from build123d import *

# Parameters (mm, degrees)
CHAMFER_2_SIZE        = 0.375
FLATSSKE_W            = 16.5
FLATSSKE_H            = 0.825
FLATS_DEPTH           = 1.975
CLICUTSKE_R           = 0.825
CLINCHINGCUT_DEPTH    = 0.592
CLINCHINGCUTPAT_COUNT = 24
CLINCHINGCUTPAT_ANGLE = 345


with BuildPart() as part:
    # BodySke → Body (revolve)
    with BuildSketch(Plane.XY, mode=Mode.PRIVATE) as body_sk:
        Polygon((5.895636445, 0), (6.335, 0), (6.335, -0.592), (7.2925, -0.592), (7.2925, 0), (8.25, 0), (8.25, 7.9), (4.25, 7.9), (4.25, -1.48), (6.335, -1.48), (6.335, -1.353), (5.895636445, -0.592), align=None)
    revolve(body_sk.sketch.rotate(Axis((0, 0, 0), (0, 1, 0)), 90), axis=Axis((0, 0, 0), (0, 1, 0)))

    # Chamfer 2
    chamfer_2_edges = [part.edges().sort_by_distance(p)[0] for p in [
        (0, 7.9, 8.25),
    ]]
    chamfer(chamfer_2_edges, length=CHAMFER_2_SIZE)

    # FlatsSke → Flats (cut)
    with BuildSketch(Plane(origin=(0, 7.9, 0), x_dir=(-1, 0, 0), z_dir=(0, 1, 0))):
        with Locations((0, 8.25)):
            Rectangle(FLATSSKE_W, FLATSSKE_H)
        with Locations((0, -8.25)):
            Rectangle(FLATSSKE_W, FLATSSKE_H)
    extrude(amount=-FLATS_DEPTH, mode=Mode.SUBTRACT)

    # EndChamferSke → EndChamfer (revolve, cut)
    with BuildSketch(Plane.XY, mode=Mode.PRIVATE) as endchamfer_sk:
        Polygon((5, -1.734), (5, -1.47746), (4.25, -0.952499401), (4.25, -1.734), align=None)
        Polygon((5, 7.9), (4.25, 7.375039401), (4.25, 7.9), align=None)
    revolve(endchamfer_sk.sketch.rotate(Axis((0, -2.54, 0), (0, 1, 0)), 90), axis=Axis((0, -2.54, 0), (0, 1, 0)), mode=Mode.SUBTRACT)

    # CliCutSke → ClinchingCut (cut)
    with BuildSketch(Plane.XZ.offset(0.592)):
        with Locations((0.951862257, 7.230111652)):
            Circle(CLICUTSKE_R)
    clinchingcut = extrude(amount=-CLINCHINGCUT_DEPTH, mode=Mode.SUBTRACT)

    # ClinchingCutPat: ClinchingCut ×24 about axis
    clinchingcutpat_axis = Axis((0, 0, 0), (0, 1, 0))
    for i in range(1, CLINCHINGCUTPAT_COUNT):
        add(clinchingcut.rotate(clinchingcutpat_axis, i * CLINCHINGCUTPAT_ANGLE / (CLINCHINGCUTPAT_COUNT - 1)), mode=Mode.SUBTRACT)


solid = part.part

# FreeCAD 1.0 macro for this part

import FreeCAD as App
import Part
import Sketcher
Q = App.Units.Quantity


def edges_at(feature, points):
    """Names of the edges that pass closest to the given points."""
    edges = feature.Shape.Edges
    near = lambda p: min(range(len(edges)), key=lambda i: edges[i].distToShape(Part.Vertex(*p))[0])
    return sorted({f"Edge{near(p) + 1}" for p in points})

doc = App.newDocument("Part")
params = doc.addObject("Spreadsheet::Sheet", "Params")
for row, (alias, value) in enumerate([
    ("sketch1_width", "4 mm"),
    ("sketch1_height", "7.9 mm"),
    ("sketch1_height2", "9.38 mm"),
    ("revolution_angle", "360 deg"),
    ("chamfer_size", "0.375 mm"),
    ("sketch2_width", "16.5 mm"),
    ("pocket1_length", "1.975 mm"),
    ("sketch3_width", "0.75 mm"),
    ("groove_angle", "360 deg"),
    ("sketch4_diameter", "1.65 mm"),
    ("pocket2_length", "0.592 mm"),
], start=1):
    params.set(f"A{row}", alias)
    params.set(f"B{row}", "=" + value)
    params.setAlias(f"B{row}", alias)

body = doc.addObject("PartDesign::Body", "Body")

# Sketch on XY plane
sketch1 = doc.addObject("Sketcher::SketchObject", "Sketch")
body.addObject(sketch1)
sketch1.AttachmentSupport = (doc.XY_Plane, [""])
sketch1.MapMode = "FlatFace"
sketch1.addGeometry(Part.LineSegment(App.Vector(5.9, 0, 0), App.Vector(6.33, 0, 0)), False)
sketch1.addGeometry(Part.LineSegment(App.Vector(6.33, 0, 0), App.Vector(6.33, -0.59, 0)), False)
sketch1.addGeometry(Part.LineSegment(App.Vector(6.33, -0.59, 0), App.Vector(7.29, -0.59, 0)), False)
sketch1.addGeometry(Part.LineSegment(App.Vector(7.29, -0.59, 0), App.Vector(7.29, 0, 0)), False)
sketch1.addGeometry(Part.LineSegment(App.Vector(7.29, 0, 0), App.Vector(8.25, 0, 0)), False)
sketch1.addGeometry(Part.LineSegment(App.Vector(8.25, 0, 0), App.Vector(8.25, 7.9, 0)), False)
sketch1.addGeometry(Part.LineSegment(App.Vector(8.25, 7.9, 0), App.Vector(4.25, 7.9, 0)), False)
sketch1.addGeometry(Part.LineSegment(App.Vector(4.25, 7.9, 0), App.Vector(4.25, -1.48, 0)), False)
sketch1.addGeometry(Part.LineSegment(App.Vector(4.25, -1.48, 0), App.Vector(6.33, -1.48, 0)), False)
sketch1.addGeometry(Part.LineSegment(App.Vector(6.33, -1.48, 0), App.Vector(6.33, -1.35, 0)), False)
sketch1.addGeometry(Part.LineSegment(App.Vector(6.33, -1.35, 0), App.Vector(5.9, -0.59, 0)), False)
sketch1.addGeometry(Part.LineSegment(App.Vector(5.9, -0.59, 0), App.Vector(5.9, 0, 0)), False)
sketch1.addConstraint(Sketcher.Constraint("Coincident", 0, 2, 1, 1))
sketch1.addConstraint(Sketcher.Constraint("Coincident", 1, 2, 2, 1))
sketch1.addConstraint(Sketcher.Constraint("Coincident", 2, 2, 3, 1))
sketch1.addConstraint(Sketcher.Constraint("Coincident", 3, 2, 4, 1))
sketch1.addConstraint(Sketcher.Constraint("Coincident", 4, 2, 5, 1))
sketch1.addConstraint(Sketcher.Constraint("Coincident", 5, 2, 6, 1))
sketch1.addConstraint(Sketcher.Constraint("Coincident", 6, 2, 7, 1))
sketch1.addConstraint(Sketcher.Constraint("Coincident", 7, 2, 8, 1))
sketch1.addConstraint(Sketcher.Constraint("Coincident", 8, 2, 9, 1))
sketch1.addConstraint(Sketcher.Constraint("Coincident", 9, 2, 10, 1))
sketch1.addConstraint(Sketcher.Constraint("Coincident", 10, 2, 11, 1))
sketch1.addConstraint(Sketcher.Constraint("Coincident", 11, 2, 0, 1))
sketch1.addConstraint(Sketcher.Constraint("Horizontal", 0))
sketch1.addConstraint(Sketcher.Constraint("Vertical", 1))
sketch1.addConstraint(Sketcher.Constraint("Horizontal", 2))
sketch1.addConstraint(Sketcher.Constraint("Vertical", 3))
sketch1.addConstraint(Sketcher.Constraint("Horizontal", 4))
sketch1.addConstraint(Sketcher.Constraint("Vertical", 5))
sketch1.addConstraint(Sketcher.Constraint("Horizontal", 6))
sketch1.addConstraint(Sketcher.Constraint("Vertical", 7))
sketch1.addConstraint(Sketcher.Constraint("Horizontal", 8))
sketch1.addConstraint(Sketcher.Constraint("Vertical", 9))
sketch1.addConstraint(Sketcher.Constraint("Vertical", 11))
sketch1.addConstraint(Sketcher.Constraint("PointOnObject", 0, 2, -1))
sketch1.addConstraint(Sketcher.Constraint("PointOnObject", 3, 2, -1))
sketch1.addConstraint(Sketcher.Constraint("Horizontal", 2, 2, 10, 2))
sketch1.addConstraint(Sketcher.Constraint("Vertical", 1, 2, 8, 2))
sketch1.addConstraint(Sketcher.Constraint("Equal", 2, 4))
sketch1.addConstraint(Sketcher.Constraint("DistanceX", 6, 2, 6, 1, Q("4 mm")))
sketch1.addConstraint(Sketcher.Constraint("Angle", 10, Q("120 deg")))
sketch1.addConstraint(Sketcher.Constraint("DistanceY", 5, 1, 5, 2, Q("7.9 mm")))
sketch1.addConstraint(Sketcher.Constraint("DistanceY", 7, 2, 7, 1, Q("9.38 mm")))
sketch1.addConstraint(Sketcher.Constraint("DistanceX", 8, 1, 8, 2, Q("2.085 mm")))
sketch1.addConstraint(Sketcher.Constraint("DistanceY", 1, 2, 1, 1, Q("0.592 mm")))
sketch1.addConstraint(Sketcher.Constraint("DistanceY", 9, 1, 9, 2, Q("0.127 mm")))
sketch1.addConstraint(Sketcher.Constraint("DistanceX", -1, 1, 4, 2, Q("8.25 mm")))
sketch1.setExpression("Constraints[28]", "Params.sketch1_width")
sketch1.setExpression("Constraints[30]", "Params.sketch1_height")
sketch1.setExpression("Constraints[31]", "Params.sketch1_height2")
revolution = doc.addObject("PartDesign::Revolution", "Revolution")
body.addObject(revolution)
revolution.Profile = sketch1
revolution.ReferenceAxis = (sketch1, ["V_Axis"])
revolution.setExpression("Angle", "Params.revolution_angle")
doc.recompute()

chamfer = doc.addObject("PartDesign::Chamfer", "Chamfer")
body.addObject(chamfer)
chamfer.Base = (revolution, edges_at(revolution, [(0, 7.9, 8.25)]))
chamfer.setExpression("Size", "Params.chamfer_size")

# Sketch on XZ plane
sketch2 = doc.addObject("Sketcher::SketchObject", "Sketch001")
body.addObject(sketch2)
sketch2.AttachmentSupport = (doc.XZ_Plane, [""])
sketch2.MapMode = "FlatFace"
sketch2.AttachmentOffset = App.Placement(App.Vector(0, 0, -7.9), App.Rotation())
sketch2.addGeometry(Part.LineSegment(App.Vector(8.2, 8.7, 0), App.Vector(8.2, 7.8, 0)), False)
sketch2.addGeometry(Part.LineSegment(App.Vector(8.2, 7.8, 0), App.Vector(-8.2, 7.8, 0)), False)
sketch2.addGeometry(Part.LineSegment(App.Vector(-8.2, 7.8, 0), App.Vector(-8.2, 8.7, 0)), False)
sketch2.addGeometry(Part.LineSegment(App.Vector(-8.2, 8.7, 0), App.Vector(8.2, 8.7, 0)), False)
sketch2.addGeometry(Part.LineSegment(App.Vector(8.2, -7.8, 0), App.Vector(8.2, -8.7, 0)), False)
sketch2.addGeometry(Part.LineSegment(App.Vector(8.2, -8.7, 0), App.Vector(-8.2, -8.7, 0)), False)
sketch2.addGeometry(Part.LineSegment(App.Vector(-8.2, -8.7, 0), App.Vector(-8.2, -7.8, 0)), False)
sketch2.addGeometry(Part.LineSegment(App.Vector(-8.2, -7.8, 0), App.Vector(8.2, -7.8, 0)), False)
sketch2.addConstraint(Sketcher.Constraint("Coincident", 0, 2, 1, 1))
sketch2.addConstraint(Sketcher.Constraint("Coincident", 1, 2, 2, 1))
sketch2.addConstraint(Sketcher.Constraint("Coincident", 2, 2, 3, 1))
sketch2.addConstraint(Sketcher.Constraint("Coincident", 3, 2, 0, 1))
sketch2.addConstraint(Sketcher.Constraint("Coincident", 4, 2, 5, 1))
sketch2.addConstraint(Sketcher.Constraint("Coincident", 5, 2, 6, 1))
sketch2.addConstraint(Sketcher.Constraint("Coincident", 6, 2, 7, 1))
sketch2.addConstraint(Sketcher.Constraint("Coincident", 7, 2, 4, 1))
sketch2.addConstraint(Sketcher.Constraint("Vertical", 0))
sketch2.addConstraint(Sketcher.Constraint("Horizontal", 1))
sketch2.addConstraint(Sketcher.Constraint("Vertical", 2))
sketch2.addConstraint(Sketcher.Constraint("Horizontal", 3))
sketch2.addConstraint(Sketcher.Constraint("Vertical", 4))
sketch2.addConstraint(Sketcher.Constraint("Horizontal", 5))
sketch2.addConstraint(Sketcher.Constraint("Vertical", 6))
sketch2.addConstraint(Sketcher.Constraint("Horizontal", 7))
sketch2.addConstraint(Sketcher.Constraint("Symmetric", 2, 2, 4, 2, -1, 1))
sketch2.addConstraint(Sketcher.Constraint("Symmetric", 0, 2, 6, 2, -1, 1))
sketch2.addConstraint(Sketcher.Constraint("Vertical", 3, 2, 4, 2))
sketch2.addConstraint(Sketcher.Constraint("DistanceX", 1, 2, 1, 1, Q("16.5 mm")))
sketch2.addConstraint(Sketcher.Constraint("DistanceY", 4, 2, 0, 2, Q("16.5 mm")))
sketch2.addConstraint(Sketcher.Constraint("DistanceY", 0, 2, 0, 1, Q("0.825 mm")))
sketch2.setExpression("Constraints[19]", "Params.sketch2_width")
pocket1 = doc.addObject("PartDesign::Pocket", "Pocket")
body.addObject(pocket1)
pocket1.Profile = sketch2
pocket1.setExpression("Length", "Params.pocket1_length")
pocket1.Reversed = True

# Sketch on XY plane
sketch3 = doc.addObject("Sketcher::SketchObject", "Sketch002")
body.addObject(sketch3)
sketch3.AttachmentSupport = (doc.XY_Plane, [""])
sketch3.MapMode = "FlatFace"
sketch3.addGeometry(Part.LineSegment(App.Vector(5, -1.73, 0), App.Vector(5, -1.48, 0)), False)
sketch3.addGeometry(Part.LineSegment(App.Vector(5, -1.48, 0), App.Vector(4.25, -0.95, 0)), False)
sketch3.addGeometry(Part.LineSegment(App.Vector(4.25, -0.95, 0), App.Vector(4.25, -1.73, 0)), False)
sketch3.addGeometry(Part.LineSegment(App.Vector(4.25, -1.73, 0), App.Vector(5, -1.73, 0)), False)
sketch3.addGeometry(Part.LineSegment(App.Vector(4.25, 7.38, 0), App.Vector(5, 7.9, 0)), False)
sketch3.addGeometry(Part.LineSegment(App.Vector(5, 7.9, 0), App.Vector(4.25, 7.9, 0)), False)
sketch3.addGeometry(Part.LineSegment(App.Vector(4.25, 7.9, 0), App.Vector(4.25, 7.38, 0)), False)
sketch3.addConstraint(Sketcher.Constraint("Coincident", 0, 2, 1, 1))
sketch3.addConstraint(Sketcher.Constraint("Coincident", 1, 2, 2, 1))
sketch3.addConstraint(Sketcher.Constraint("Coincident", 2, 2, 3, 1))
sketch3.addConstraint(Sketcher.Constraint("Coincident", 3, 2, 0, 1))
sketch3.addConstraint(Sketcher.Constraint("Coincident", 4, 2, 5, 1))
sketch3.addConstraint(Sketcher.Constraint("Coincident", 5, 2, 6, 1))
sketch3.addConstraint(Sketcher.Constraint("Coincident", 6, 2, 4, 1))
sketch3.addConstraint(Sketcher.Constraint("Vertical", 0))
sketch3.addConstraint(Sketcher.Constraint("Vertical", 2))
sketch3.addConstraint(Sketcher.Constraint("Horizontal", 3))
sketch3.addConstraint(Sketcher.Constraint("Horizontal", 5))
sketch3.addConstraint(Sketcher.Constraint("Vertical", 6))
sketch3.addConstraint(Sketcher.Constraint("Vertical", 3, 2, 4, 2))
sketch3.addConstraint(Sketcher.Constraint("Vertical", 2, 2, 5, 2))
sketch3.addConstraint(Sketcher.Constraint("Equal", 1, 4))
sketch3.addConstraint(Sketcher.Constraint("DistanceX", -1, 1, 0, 2, Q("5 mm")))
sketch3.addConstraint(Sketcher.Constraint("DistanceX", 3, 1, 3, 2, Q("0.75 mm")))
sketch3.addConstraint(Sketcher.Constraint("DistanceY", -1, 1, 4, 2, Q("7.9 mm")))
sketch3.addConstraint(Sketcher.Constraint("Angle", 1, Q("145.01 deg")))
sketch3.addConstraint(Sketcher.Constraint("DistanceY", 2, 2, 2, 1, Q("0.781501 mm")))
sketch3.addConstraint(Sketcher.Constraint("DistanceY", 2, 2, -1, 1, Q("1.734 mm")))
sketch3.setExpression("Constraints[16]", "Params.sketch3_width")
groove = doc.addObject("PartDesign::Groove", "Groove")
body.addObject(groove)
groove.Profile = sketch3
groove.ReferenceAxis = (sketch3, ["V_Axis"])
groove.setExpression("Angle", "Params.groove_angle")

# Sketch on XZ plane
sketch4 = doc.addObject("Sketcher::SketchObject", "Sketch003")
body.addObject(sketch4)
sketch4.AttachmentSupport = (doc.XZ_Plane, [""])
sketch4.MapMode = "FlatFace"
sketch4.AttachmentOffset = App.Placement(App.Vector(0, 0, 0.592), App.Rotation())
sketch4.addGeometry(Part.Circle(App.Vector(1, 7.2, 0), App.Vector(0, 0, 1), 0.8), False)
sketch4.addConstraint(Sketcher.Constraint("Diameter", 0, Q("1.65 mm")))
sketch4.addConstraint(Sketcher.Constraint("DistanceY", -1, 1, 0, 3, Q("7.230112 mm")))
sketch4.addConstraint(Sketcher.Constraint("DistanceX", -1, 1, 0, 3, Q("0.951862 mm")))
sketch4.setExpression("Constraints[0]", "Params.sketch4_diameter")
pocket2 = doc.addObject("PartDesign::Pocket", "Pocket001")
body.addObject(pocket2)
pocket2.Profile = sketch4
pocket2.setExpression("Length", "Params.pocket2_length")
doc.recompute()

polarpattern = doc.addObject("PartDesign::PolarPattern", "PolarPattern")
body.addObject(polarpattern)
polarpattern.Originals = [pocket2]
polarpattern.Axis = (doc.Y_Axis, [""])
polarpattern.Angle = 360
polarpattern.Occurrences = 24
body.Tip = polarpattern

doc.recompute()
